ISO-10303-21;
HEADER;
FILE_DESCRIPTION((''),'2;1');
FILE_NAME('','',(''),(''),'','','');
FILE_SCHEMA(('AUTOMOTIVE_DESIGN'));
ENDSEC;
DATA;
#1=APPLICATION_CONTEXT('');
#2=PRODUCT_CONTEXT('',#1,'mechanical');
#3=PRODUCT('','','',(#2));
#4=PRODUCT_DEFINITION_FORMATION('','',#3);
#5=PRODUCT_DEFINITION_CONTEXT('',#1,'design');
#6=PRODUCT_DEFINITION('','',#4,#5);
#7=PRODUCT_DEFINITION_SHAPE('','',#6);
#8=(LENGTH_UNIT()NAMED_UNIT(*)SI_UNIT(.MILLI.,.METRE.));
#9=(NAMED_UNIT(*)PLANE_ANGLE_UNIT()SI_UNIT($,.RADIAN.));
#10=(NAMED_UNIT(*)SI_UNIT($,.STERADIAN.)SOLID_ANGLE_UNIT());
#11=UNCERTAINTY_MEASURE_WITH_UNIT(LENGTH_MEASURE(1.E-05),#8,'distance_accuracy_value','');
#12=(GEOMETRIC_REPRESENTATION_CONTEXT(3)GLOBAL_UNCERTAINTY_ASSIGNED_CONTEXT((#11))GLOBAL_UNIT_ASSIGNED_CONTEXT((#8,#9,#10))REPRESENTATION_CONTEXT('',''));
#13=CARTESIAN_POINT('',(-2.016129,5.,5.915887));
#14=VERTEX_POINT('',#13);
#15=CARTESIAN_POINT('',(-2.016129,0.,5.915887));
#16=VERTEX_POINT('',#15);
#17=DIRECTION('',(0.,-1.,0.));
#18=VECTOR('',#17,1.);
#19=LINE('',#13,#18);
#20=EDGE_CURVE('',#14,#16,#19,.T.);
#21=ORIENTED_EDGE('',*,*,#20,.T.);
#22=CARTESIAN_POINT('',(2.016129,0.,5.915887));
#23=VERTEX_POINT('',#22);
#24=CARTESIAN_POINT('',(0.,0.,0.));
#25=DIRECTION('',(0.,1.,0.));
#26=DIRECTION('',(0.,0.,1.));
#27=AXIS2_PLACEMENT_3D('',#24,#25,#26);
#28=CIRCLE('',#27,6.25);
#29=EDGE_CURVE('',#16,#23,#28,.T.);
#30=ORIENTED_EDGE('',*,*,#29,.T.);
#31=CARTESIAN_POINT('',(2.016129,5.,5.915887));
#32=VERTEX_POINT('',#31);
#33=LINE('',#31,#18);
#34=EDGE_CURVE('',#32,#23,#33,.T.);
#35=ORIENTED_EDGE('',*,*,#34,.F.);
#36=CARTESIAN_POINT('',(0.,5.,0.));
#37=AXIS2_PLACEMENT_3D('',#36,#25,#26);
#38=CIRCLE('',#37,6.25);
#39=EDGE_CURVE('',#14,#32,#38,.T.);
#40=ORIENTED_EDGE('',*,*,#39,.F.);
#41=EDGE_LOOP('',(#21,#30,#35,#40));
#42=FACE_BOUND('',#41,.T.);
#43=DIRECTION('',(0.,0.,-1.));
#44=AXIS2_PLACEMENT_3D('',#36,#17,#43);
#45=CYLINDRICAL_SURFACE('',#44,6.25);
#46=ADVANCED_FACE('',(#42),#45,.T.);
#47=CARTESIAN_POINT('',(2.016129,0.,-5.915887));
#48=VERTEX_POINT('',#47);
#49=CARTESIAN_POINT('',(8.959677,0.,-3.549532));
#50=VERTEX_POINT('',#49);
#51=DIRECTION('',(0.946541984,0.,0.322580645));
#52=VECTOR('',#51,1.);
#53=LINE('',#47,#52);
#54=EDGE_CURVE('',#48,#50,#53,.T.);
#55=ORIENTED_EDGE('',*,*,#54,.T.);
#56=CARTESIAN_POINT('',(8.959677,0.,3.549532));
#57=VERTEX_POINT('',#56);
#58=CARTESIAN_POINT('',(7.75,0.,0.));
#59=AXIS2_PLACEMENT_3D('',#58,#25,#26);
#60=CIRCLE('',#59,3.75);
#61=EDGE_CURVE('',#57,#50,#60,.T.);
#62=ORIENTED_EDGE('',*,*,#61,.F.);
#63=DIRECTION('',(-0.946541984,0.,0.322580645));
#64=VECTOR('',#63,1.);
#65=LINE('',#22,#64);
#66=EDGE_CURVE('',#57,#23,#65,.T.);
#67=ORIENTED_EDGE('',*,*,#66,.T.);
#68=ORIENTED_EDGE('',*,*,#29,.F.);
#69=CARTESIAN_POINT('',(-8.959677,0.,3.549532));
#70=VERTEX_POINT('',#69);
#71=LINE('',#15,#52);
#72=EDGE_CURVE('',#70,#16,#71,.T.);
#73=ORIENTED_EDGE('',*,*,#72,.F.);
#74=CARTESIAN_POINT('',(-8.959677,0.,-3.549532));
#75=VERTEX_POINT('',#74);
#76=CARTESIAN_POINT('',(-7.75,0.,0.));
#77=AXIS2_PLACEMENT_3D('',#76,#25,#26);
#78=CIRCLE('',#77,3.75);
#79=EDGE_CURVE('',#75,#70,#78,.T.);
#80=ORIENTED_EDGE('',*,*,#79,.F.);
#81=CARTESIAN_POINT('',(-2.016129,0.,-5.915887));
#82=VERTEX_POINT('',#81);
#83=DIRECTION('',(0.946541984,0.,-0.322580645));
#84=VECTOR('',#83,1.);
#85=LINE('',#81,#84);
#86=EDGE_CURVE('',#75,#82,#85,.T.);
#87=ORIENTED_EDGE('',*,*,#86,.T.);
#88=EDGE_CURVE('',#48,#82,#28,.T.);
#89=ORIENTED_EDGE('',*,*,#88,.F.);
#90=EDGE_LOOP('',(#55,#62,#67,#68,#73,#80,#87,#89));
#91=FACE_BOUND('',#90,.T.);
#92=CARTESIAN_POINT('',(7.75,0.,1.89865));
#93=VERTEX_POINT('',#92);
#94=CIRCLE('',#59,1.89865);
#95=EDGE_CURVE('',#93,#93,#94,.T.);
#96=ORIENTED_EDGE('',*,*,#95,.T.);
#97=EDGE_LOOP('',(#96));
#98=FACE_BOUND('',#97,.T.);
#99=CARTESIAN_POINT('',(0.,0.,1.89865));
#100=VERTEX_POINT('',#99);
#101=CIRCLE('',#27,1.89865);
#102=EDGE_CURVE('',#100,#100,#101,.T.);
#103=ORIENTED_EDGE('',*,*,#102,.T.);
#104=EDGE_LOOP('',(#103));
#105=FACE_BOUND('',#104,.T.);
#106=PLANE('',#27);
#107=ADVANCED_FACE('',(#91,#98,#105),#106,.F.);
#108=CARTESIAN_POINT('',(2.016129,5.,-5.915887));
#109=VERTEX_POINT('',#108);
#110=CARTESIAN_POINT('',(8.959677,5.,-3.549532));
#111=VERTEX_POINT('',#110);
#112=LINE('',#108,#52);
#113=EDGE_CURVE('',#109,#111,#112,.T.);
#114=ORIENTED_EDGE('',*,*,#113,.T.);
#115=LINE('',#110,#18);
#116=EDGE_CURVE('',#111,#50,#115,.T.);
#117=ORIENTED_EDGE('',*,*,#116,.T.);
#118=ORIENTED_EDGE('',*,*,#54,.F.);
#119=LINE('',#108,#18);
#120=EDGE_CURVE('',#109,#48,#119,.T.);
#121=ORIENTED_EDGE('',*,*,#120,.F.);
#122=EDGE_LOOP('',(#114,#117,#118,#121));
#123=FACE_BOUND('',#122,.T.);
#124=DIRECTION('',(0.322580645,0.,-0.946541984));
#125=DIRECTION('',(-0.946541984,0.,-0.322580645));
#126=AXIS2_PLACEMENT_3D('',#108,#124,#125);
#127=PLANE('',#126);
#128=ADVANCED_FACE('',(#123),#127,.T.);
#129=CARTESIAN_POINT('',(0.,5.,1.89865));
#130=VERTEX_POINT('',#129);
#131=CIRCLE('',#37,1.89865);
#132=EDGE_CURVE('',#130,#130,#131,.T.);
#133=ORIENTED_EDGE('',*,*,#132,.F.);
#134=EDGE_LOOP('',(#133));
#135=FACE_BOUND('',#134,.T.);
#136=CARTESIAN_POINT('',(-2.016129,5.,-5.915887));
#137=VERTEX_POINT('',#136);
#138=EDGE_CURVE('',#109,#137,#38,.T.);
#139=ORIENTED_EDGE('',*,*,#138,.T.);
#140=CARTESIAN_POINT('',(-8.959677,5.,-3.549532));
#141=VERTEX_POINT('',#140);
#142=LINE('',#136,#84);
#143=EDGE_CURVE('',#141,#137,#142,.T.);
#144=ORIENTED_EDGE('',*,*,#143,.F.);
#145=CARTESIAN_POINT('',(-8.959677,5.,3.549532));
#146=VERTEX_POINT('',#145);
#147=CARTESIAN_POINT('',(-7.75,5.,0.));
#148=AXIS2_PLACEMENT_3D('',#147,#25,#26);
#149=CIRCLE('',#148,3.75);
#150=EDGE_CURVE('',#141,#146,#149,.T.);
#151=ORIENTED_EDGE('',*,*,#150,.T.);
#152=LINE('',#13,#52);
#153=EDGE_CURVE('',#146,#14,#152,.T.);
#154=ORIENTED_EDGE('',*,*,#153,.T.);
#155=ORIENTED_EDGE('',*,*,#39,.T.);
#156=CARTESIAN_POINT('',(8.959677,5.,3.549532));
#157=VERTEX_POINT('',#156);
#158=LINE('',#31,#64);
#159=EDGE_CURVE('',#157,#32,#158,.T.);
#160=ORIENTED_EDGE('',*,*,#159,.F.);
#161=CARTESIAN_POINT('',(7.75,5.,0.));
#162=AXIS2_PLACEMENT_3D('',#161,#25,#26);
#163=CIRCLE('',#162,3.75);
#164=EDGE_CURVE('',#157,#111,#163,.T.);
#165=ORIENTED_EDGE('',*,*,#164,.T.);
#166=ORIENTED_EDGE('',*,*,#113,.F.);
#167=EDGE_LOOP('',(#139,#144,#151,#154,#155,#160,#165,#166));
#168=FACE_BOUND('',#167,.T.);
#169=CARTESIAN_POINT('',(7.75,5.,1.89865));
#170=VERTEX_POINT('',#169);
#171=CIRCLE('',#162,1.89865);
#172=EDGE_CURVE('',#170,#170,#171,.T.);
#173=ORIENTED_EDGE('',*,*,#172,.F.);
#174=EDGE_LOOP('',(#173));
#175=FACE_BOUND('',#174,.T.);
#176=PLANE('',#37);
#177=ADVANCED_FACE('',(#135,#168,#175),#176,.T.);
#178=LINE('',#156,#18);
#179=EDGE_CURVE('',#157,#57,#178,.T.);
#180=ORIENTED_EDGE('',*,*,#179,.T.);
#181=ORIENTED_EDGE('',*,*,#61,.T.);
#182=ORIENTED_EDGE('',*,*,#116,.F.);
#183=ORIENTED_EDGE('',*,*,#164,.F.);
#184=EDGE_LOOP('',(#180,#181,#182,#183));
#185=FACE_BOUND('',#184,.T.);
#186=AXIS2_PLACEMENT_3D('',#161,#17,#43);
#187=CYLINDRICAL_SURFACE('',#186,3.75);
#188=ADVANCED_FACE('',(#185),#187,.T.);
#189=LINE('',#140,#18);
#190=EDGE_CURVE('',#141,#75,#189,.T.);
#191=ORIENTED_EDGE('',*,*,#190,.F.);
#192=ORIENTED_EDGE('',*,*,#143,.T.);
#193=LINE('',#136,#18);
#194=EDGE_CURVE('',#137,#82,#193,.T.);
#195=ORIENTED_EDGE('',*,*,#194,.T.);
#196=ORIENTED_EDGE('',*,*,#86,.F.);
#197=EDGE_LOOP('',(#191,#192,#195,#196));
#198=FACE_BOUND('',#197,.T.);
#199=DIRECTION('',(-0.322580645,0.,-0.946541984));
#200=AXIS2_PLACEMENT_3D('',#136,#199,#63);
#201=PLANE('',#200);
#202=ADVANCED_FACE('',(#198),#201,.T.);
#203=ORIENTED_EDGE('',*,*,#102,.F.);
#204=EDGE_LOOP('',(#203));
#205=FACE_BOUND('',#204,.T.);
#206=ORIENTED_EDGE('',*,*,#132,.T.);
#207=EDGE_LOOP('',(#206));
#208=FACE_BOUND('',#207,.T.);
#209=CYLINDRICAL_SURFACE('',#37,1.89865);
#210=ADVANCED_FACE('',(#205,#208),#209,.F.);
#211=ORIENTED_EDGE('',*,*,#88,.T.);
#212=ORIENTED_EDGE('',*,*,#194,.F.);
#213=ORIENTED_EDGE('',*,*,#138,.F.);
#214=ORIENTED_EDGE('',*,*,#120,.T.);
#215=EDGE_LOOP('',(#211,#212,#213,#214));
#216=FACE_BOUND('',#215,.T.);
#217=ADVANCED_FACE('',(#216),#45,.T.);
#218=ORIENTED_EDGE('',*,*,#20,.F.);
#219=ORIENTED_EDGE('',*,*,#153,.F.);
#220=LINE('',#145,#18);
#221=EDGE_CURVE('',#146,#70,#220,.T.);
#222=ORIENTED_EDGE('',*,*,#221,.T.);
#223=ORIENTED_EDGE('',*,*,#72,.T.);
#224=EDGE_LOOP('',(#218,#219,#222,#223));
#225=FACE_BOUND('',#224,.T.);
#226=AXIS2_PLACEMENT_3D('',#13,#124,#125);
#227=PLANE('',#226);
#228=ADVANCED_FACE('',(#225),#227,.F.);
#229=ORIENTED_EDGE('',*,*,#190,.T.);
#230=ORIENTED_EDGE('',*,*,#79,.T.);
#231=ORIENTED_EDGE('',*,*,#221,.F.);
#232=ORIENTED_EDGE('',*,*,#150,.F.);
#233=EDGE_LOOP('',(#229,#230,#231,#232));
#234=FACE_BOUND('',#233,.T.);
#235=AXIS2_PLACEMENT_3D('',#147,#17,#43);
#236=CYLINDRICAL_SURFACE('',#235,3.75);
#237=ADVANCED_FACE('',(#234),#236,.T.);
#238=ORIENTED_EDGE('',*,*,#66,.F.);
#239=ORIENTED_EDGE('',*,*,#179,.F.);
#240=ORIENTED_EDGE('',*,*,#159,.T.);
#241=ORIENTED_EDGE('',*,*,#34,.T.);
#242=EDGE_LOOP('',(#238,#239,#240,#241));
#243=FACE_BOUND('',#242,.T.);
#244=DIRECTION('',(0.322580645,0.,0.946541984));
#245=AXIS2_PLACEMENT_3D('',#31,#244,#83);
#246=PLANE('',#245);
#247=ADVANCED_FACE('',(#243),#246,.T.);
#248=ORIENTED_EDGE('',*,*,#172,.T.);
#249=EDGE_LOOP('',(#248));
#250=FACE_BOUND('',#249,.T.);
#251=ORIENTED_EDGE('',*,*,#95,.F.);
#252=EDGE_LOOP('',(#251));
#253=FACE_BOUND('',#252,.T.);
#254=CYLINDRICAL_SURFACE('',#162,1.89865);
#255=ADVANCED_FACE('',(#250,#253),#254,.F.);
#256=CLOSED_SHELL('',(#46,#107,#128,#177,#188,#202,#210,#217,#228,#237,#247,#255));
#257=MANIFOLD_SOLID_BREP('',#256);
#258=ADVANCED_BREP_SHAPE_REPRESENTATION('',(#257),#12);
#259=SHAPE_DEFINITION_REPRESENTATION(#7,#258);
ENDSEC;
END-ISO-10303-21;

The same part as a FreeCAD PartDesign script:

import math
import FreeCAD as App
import Part
import Sketcher
from FreeCAD import Vector
Q = App.Units.Quantity

doc = App.newDocument("Part")
body = doc.addObject("PartDesign::Body", "Body")

# Sketch on XZ plane
sketch1 = doc.addObject("Sketcher::SketchObject", "Sketch")
body.addObject(sketch1)
sketch1.AttachmentSupport = (doc.XZ_Plane, [""])
sketch1.MapMode = "FlatFace"
sketch1.addGeometry([
    Part.ArcOfCircle(Part.Circle(Vector(0, 0, 0), Vector(0, 0, 1), 6.2), math.radians(71), math.radians(109)),  # 0
    Part.LineSegment(Vector(2, 5.9, 0), Vector(9, 3.5, 0)),  # 1
    Part.ArcOfCircle(Part.Circle(Vector(7.8, 0, 0), Vector(0, 0, 1), 3.8), math.radians(-71), math.radians(71)),  # 2
    Part.LineSegment(Vector(9, -3.5, 0), Vector(2, -5.9, 0)),  # 3
    Part.ArcOfCircle(Part.Circle(Vector(0, 0, 0), Vector(0, 0, 1), 6.2), math.radians(-109), math.radians(-71)),  # 4
    Part.LineSegment(Vector(-2, -5.9, 0), Vector(-9, -3.5, 0)),  # 5
    Part.ArcOfCircle(Part.Circle(Vector(-7.8, 0, 0), Vector(0, 0, 1), 3.8), math.radians(109), math.radians(251)),  # 6
    Part.LineSegment(Vector(-9, 3.5, 0), Vector(-2, 5.9, 0)),  # 7
], False)
sketch1.addConstraint([
    Sketcher.Constraint("Tangent", 0, 1, 1, 1),
    Sketcher.Constraint("Tangent", 1, 2, 2, 2),
    Sketcher.Constraint("Tangent", 2, 1, 3, 1),
    Sketcher.Constraint("Tangent", 3, 2, 4, 2),
    Sketcher.Constraint("Tangent", 4, 1, 5, 1),
    Sketcher.Constraint("Tangent", 5, 2, 6, 2),
    Sketcher.Constraint("Tangent", 6, 1, 7, 1),
    Sketcher.Constraint("Tangent", 7, 2, 0, 2),
    Sketcher.Constraint("Coincident", 0, 3, -1, 1),
    Sketcher.Constraint("Coincident", 4, 3, -1, 1),
    Sketcher.Constraint("Equal", 0, 4),
    Sketcher.Constraint("Equal", 2, 6),
    Sketcher.Constraint("Symmetric", 2, 3, 6, 3, -1, 1),
    Sketcher.Constraint("PointOnObject", 2, 3, -1),
    Sketcher.Constraint("Radius", 0, Q("6.25 mm")),
    Sketcher.Constraint("Radius", 2, Q("3.75 mm")),
    Sketcher.Constraint("DistanceX", 6, 3, 2, 3, Q("15.5 mm")),
])
pad1 = doc.addObject("PartDesign::Pad", "Pad")
body.addObject(pad1)
pad1.Profile = sketch1
pad1.Length = 5
pad1.Reversed = True

# Sketch on XZ plane
sketch2 = doc.addObject("Sketcher::SketchObject", "Sketch001")
body.addObject(sketch2)
sketch2.AttachmentSupport = (doc.XZ_Plane, [""])
sketch2.MapMode = "FlatFace"
sketch2.AttachmentOffset = App.Placement(Vector(0, 0, -5), App.Rotation())
sketch2.addGeometry([
    Part.Circle(Vector(7.8, 0, 0), Vector(0, 0, 1), 1.9),
    Part.Circle(Vector(0, 0, 0), Vector(0, 0, 1), 1.9),
], False)
sketch2.addConstraint([
    Sketcher.Constraint("Coincident", 1, 3, -1, 1),
    Sketcher.Constraint("Equal", 0, 1),
    Sketcher.Constraint("PointOnObject", 0, 3, -1),
    Sketcher.Constraint("Diameter", 0, Q("3.7973 mm")),
    Sketcher.Constraint("DistanceX", -1, 1, 0, 3, Q("7.75 mm")),
])
doc.recompute()
hole = doc.addObject("PartDesign::Hole", "Hole")
body.addObject(hole)
hole.Profile = sketch2
hole.ThreadType = "None"
hole.Diameter = 3.7973
hole.DepthType = "ThroughAll"
hole.Reversed = True

doc.recompute()
